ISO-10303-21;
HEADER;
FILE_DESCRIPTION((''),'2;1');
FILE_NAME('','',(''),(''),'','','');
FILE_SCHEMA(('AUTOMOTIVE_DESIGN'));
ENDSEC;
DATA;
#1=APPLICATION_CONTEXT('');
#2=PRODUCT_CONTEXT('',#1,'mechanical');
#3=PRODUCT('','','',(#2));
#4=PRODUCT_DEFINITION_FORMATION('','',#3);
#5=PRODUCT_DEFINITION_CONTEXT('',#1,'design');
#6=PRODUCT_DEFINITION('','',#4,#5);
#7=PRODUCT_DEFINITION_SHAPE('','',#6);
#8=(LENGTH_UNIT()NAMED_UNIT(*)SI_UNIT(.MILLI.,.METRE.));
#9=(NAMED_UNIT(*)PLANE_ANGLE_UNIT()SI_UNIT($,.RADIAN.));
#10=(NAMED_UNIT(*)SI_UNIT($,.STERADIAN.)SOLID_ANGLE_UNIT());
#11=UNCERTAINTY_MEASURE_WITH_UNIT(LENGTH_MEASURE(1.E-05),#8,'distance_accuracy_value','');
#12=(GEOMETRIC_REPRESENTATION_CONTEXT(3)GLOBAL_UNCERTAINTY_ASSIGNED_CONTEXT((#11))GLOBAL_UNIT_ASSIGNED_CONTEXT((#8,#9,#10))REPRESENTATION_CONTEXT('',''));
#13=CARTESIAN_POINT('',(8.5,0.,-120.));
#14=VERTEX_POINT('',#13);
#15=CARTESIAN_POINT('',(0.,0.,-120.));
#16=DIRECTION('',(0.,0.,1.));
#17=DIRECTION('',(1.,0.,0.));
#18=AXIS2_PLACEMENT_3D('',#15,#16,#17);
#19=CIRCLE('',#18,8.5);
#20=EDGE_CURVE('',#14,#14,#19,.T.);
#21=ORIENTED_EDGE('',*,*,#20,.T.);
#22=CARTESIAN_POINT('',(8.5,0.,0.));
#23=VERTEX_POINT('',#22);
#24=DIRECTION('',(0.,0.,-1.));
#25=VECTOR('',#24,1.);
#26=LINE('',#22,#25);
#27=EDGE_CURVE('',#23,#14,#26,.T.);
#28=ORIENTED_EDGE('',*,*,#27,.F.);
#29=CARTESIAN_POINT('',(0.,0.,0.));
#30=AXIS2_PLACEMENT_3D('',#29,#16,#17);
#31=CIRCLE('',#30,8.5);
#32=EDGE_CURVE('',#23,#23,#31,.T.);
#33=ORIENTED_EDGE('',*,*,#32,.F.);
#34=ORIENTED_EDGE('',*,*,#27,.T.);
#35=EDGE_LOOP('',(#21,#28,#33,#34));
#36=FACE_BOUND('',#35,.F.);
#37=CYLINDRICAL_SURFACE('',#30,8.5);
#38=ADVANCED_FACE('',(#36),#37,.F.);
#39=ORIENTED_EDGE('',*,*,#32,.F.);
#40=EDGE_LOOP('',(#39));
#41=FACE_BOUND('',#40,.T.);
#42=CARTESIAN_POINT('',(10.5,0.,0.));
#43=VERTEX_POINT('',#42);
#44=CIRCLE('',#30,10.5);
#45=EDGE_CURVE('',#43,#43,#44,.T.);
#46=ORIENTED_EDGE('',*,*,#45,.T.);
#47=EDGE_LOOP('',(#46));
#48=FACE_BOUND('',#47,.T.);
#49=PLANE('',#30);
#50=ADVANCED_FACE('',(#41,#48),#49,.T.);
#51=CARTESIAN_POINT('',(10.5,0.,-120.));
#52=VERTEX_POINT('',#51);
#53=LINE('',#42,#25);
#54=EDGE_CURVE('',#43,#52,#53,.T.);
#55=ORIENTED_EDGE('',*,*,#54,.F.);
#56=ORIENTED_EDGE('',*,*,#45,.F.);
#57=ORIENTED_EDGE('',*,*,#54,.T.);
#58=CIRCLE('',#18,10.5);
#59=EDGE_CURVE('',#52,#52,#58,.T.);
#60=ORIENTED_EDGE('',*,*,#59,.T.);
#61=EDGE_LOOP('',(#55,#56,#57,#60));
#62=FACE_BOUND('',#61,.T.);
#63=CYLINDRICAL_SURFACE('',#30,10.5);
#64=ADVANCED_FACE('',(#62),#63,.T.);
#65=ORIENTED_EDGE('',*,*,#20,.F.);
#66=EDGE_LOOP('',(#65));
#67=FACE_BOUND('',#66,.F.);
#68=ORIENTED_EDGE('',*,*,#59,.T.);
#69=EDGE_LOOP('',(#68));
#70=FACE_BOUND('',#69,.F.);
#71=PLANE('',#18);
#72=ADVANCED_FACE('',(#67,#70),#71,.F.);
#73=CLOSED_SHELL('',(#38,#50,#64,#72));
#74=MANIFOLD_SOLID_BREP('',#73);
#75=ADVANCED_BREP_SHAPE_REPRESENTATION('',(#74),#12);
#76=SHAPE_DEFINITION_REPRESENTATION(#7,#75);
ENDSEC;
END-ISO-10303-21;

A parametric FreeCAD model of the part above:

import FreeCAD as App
import Part
import Sketcher
from FreeCAD import Vector

doc = App.newDocument("Part")
body = doc.addObject("PartDesign::Body", "Body")

sketch1 = body.newObject("Sketcher::SketchObject", "Sketch")
sketch1.AttachmentSupport = (doc.getObject("XY_Plane"), [""])
sketch1.MapMode = "FlatFace"
sketch1.addGeometry([
    Part.Circle(Vector(0, 0, 0), Vector(0, 0, 1), 10.5),
    Part.Circle(Vector(0, 0, 0), Vector(0, 0, 1), 8.5),
], False)
sketch1.addConstraint([
    Sketcher.Constraint("Coincident", 0, 3, -1, 1),
    Sketcher.Constraint("Coincident", 1, 3, -1, 1),
    Sketcher.Constraint("Diameter", 0, 21.0),
    Sketcher.Constraint("Diameter", 1, 17.0),
])
pad1 = body.newObject("PartDesign::Pad", "Pad")
pad1.Profile = sketch1
pad1.Length = 120
pad1.Reversed = True

doc.recompute()
